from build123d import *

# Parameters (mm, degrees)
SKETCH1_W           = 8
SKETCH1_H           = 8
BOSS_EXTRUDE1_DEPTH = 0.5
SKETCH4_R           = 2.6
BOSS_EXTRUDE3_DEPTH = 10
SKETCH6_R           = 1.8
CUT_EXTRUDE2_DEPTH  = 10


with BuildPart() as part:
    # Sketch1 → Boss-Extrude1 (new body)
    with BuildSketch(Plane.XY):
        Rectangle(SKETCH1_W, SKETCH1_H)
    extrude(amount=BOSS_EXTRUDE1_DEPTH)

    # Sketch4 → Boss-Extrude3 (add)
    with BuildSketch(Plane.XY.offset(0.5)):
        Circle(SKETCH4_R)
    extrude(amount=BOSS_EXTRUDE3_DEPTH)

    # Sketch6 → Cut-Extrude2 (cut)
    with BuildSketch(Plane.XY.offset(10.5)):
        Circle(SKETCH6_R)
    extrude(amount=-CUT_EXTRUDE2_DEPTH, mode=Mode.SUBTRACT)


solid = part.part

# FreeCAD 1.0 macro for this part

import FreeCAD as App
import Part
import Sketcher

doc = App.newDocument("Part")
body = doc.addObject("PartDesign::Body", "Body")

# Sketch on XY plane
sketch1 = body.newObject("Sketcher::SketchObject", "Sketch")
sketch1.AttachmentSupport = (doc.getObject("XY_Plane"), [""])
sketch1.MapMode = "FlatFace"
sketch1.addGeometry([
    Part.LineSegment(App.Vector(-4, 4, 0), App.Vector(-4, -4, 0)),
    Part.LineSegment(App.Vector(-4, -4, 0), App.Vector(4, -4, 0)),
    Part.LineSegment(App.Vector(4, -4, 0), App.Vector(4, 4, 0)),
    Part.LineSegment(App.Vector(4, 4, 0), App.Vector(-4, 4, 0)),
], False)
sketch1.addConstraint([
    Sketcher.Constraint("Coincident", 0, 2, 1, 1),
    Sketcher.Constraint("Coincident", 1, 2, 2, 1),
    Sketcher.Constraint("Coincident", 2, 2, 3, 1),
    Sketcher.Constraint("Coincident", 3, 2, 0, 1),
    Sketcher.Constraint("Vertical", 0),
    Sketcher.Constraint("Horizontal", 1),
    Sketcher.Constraint("Vertical", 2),
    Sketcher.Constraint("Horizontal", 3),
    Sketcher.Constraint("Symmetric", 0, 2, 2, 2, -1, 1),
    Sketcher.Constraint("Equal", 3, 0),
    Sketcher.Constraint("DistanceX", 1, 1, 1, 2, 8.0),
])
pad1 = body.newObject("PartDesign::Pad", "Pad")
pad1.Profile = sketch1
pad1.Length = 0.5

# Sketch on XY plane
sketch2 = body.newObject("Sketcher::SketchObject", "Sketch001")
sketch2.AttachmentSupport = (doc.getObject("XY_Plane"), [""])
sketch2.MapMode = "FlatFace"
sketch2.AttachmentOffset = App.Placement(App.Vector(0, 0, 0.5), App.Rotation())
sketch2.addGeometry(Part.Circle(App.Vector(0, 0, 0), App.Vector(0, 0, 1), 2.6), False)
sketch2.addConstraint([
    Sketcher.Constraint("Coincident", 0, 3, -1, 1),
    Sketcher.Constraint("Diameter", 0, 5.2),
])
pad2 = body.newObject("PartDesign::Pad", "Pad001")
pad2.Profile = sketch2
pad2.Length = 10

# Sketch on XY plane
sketch3 = body.newObject("Sketcher::SketchObject", "Sketch002")
sketch3.AttachmentSupport = (doc.getObject("XY_Plane"), [""])
sketch3.MapMode = "FlatFace"
sketch3.AttachmentOffset = App.Placement(App.Vector(0, 0, 10.5), App.Rotation())
sketch3.addGeometry(Part.Circle(App.Vector(0, 0, 0), App.Vector(0, 0, 1), 1.8), False)
sketch3.addConstraint([
    Sketcher.Constraint("Coincident", 0, 3, -1, 1),
    Sketcher.Constraint("Diameter", 0, 3.6),
])
pocket1 = body.newObject("PartDesign::Pocket", "Pocket")
pocket1.Profile = sketch3
pocket1.Length = 10

doc.recompute()
